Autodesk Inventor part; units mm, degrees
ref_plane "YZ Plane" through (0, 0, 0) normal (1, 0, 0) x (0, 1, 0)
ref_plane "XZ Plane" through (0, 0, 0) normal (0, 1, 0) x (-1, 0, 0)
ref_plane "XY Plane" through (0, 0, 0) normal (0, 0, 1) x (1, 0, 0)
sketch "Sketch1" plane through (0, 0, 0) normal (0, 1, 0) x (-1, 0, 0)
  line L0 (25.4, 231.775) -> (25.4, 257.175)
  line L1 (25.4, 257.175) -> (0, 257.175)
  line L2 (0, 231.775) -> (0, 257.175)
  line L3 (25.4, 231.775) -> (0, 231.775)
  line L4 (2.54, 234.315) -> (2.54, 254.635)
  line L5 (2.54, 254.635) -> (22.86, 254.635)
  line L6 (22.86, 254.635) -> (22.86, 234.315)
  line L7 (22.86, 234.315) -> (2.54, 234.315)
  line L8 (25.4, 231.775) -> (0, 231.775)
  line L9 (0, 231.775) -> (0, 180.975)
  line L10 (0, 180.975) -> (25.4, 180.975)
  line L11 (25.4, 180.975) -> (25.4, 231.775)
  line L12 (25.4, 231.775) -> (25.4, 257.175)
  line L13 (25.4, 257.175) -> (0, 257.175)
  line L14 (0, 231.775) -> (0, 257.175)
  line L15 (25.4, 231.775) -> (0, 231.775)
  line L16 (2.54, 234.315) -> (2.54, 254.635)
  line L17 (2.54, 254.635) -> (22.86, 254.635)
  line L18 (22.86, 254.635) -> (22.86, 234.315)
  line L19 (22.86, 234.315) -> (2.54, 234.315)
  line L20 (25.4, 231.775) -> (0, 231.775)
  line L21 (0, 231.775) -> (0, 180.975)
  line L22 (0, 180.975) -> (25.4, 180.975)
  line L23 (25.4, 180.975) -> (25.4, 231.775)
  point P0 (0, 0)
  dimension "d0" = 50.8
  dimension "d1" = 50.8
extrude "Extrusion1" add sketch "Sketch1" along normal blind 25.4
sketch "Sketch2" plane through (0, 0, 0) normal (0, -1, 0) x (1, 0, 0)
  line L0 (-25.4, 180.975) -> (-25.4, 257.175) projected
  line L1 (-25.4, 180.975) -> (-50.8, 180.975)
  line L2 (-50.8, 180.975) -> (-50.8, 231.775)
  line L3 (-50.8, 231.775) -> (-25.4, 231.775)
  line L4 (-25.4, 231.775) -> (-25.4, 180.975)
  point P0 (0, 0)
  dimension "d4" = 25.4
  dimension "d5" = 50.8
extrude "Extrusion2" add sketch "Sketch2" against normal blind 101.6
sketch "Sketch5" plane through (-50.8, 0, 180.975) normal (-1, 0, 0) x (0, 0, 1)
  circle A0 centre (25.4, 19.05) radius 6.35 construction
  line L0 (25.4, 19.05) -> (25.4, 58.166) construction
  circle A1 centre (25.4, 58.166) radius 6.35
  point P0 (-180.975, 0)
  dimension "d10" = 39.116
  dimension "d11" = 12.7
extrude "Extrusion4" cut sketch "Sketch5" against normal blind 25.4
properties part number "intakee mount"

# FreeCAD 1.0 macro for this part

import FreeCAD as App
import Part
import Sketcher

V = App.Vector
Q = App.Units.Quantity


def add_polygon(sketch, points):
    """Adds a closed chain of lines whose ends are joined by coincident constraints."""
    first, n = sketch.GeometryCount, len(points)
    for a, b in zip(points, points[1:] + points[:1]):
        sketch.addGeometry(Part.LineSegment(App.Vector(*a, 0), App.Vector(*b, 0)), False)
    for i in range(n):
        sketch.addConstraint(Sketcher.Constraint("Coincident", first + i, 2, first + (i + 1) % n, 1))

doc = App.newDocument("Part")
body = doc.addObject("PartDesign::Body", "Body")

# Sketch on XZ plane
sketch1 = body.newObject("Sketcher::SketchObject", "Sketch")
sketch1.AttachmentSupport = (doc.getObject("XZ_Plane"), [""])
sketch1.MapMode = "FlatFace"
add_polygon(sketch1, [(0, 257), (0, 181), (-25, 181), (-25, 257)])  # lines 0-3
add_polygon(sketch1, [(-23, 234), (-3, 234), (-3, 255), (-23, 255)])  # lines 4-7
sketch1.addConstraint([
    Sketcher.Constraint("Vertical", 0),
    Sketcher.Constraint("Horizontal", 1),
    Sketcher.Constraint("Vertical", 2),
    Sketcher.Constraint("Horizontal", 3),
    Sketcher.Constraint("Horizontal", 4),
    Sketcher.Constraint("Vertical", 5),
    Sketcher.Constraint("Horizontal", 6),
    Sketcher.Constraint("Vertical", 7),
    Sketcher.Constraint("PointOnObject", 0, 2, -2),
    Sketcher.Constraint("Equal", 6, 5),
    Sketcher.Constraint("DistanceX", 1, 2, 1, 1, Q("1 in")),
    Sketcher.Constraint("DistanceY", 0, 2, 0, 1, Q("3 in")),
    Sketcher.Constraint("DistanceX", 4, 1, 4, 2, Q("0.8 in")),
    Sketcher.Constraint("DistanceX", 4, 2, -1, 1, Q("0.1 in")),
    Sketcher.Constraint("DistanceY", 4, 2, 3, 2, Q("0.9 in")),
    Sketcher.Constraint("DistanceY", -1, 1, 0, 2, Q("7.125 in")),
])
pad1 = body.newObject("PartDesign::Pad", "Pad")
pad1.Profile = sketch1
pad1.Length = Q("1 in")
pad1.Reversed = True

# Sketch on XZ plane
sketch2 = body.newObject("Sketcher::SketchObject", "Sketch001")
sketch2.AttachmentSupport = (doc.getObject("XZ_Plane"), [""])
sketch2.MapMode = "FlatFace"
add_polygon(sketch2, [(-51, 181), (-25, 181), (-25, 232), (-51, 232)])  # lines 0-3
sketch2.addConstraint([
    Sketcher.Constraint("Horizontal", 0),
    Sketcher.Constraint("Vertical", 1),
    Sketcher.Constraint("Horizontal", 2),
    Sketcher.Constraint("Vertical", 3),
    Sketcher.Constraint("DistanceX", 0, 1, 0, 2, Q("1 in")),
    Sketcher.Constraint("DistanceY", 1, 1, 1, 2, Q("2 in")),
    Sketcher.Constraint("DistanceX", 0, 2, -1, 1, Q("1 in")),
    Sketcher.Constraint("DistanceY", -1, 1, 0, 2, Q("7.125 in")),
])
pad2 = body.newObject("PartDesign::Pad", "Pad001")
pad2.Profile = sketch2
pad2.Length = Q("4 in")
pad2.Reversed = True

# Sketch on YZ plane
sketch3 = body.newObject("Sketcher::SketchObject", "Sketch002")
sketch3.AttachmentSupport = (doc.getObject("YZ_Plane"), [""])
sketch3.MapMode = "FlatFace"
sketch3.AttachmentOffset = App.Placement(V(0, 0, -2 * 25.4), App.Rotation())
sketch3.addGeometry(Part.Circle(V(58, 206, 0), V(0, 0, 1), 6), False)
sketch3.addConstraint([
    Sketcher.Constraint("Diameter", 0, Q("0.5 in")),
    Sketcher.Constraint("DistanceX", -1, 1, 0, 3, Q("2.29 in")),
    Sketcher.Constraint("DistanceY", -1, 1, 0, 3, Q("8.125 in")),
])
pocket1 = body.newObject("PartDesign::Pocket", "Pocket")
pocket1.Profile = sketch3
pocket1.Length = Q("1 in")
pocket1.Reversed = True

doc.recompute()
